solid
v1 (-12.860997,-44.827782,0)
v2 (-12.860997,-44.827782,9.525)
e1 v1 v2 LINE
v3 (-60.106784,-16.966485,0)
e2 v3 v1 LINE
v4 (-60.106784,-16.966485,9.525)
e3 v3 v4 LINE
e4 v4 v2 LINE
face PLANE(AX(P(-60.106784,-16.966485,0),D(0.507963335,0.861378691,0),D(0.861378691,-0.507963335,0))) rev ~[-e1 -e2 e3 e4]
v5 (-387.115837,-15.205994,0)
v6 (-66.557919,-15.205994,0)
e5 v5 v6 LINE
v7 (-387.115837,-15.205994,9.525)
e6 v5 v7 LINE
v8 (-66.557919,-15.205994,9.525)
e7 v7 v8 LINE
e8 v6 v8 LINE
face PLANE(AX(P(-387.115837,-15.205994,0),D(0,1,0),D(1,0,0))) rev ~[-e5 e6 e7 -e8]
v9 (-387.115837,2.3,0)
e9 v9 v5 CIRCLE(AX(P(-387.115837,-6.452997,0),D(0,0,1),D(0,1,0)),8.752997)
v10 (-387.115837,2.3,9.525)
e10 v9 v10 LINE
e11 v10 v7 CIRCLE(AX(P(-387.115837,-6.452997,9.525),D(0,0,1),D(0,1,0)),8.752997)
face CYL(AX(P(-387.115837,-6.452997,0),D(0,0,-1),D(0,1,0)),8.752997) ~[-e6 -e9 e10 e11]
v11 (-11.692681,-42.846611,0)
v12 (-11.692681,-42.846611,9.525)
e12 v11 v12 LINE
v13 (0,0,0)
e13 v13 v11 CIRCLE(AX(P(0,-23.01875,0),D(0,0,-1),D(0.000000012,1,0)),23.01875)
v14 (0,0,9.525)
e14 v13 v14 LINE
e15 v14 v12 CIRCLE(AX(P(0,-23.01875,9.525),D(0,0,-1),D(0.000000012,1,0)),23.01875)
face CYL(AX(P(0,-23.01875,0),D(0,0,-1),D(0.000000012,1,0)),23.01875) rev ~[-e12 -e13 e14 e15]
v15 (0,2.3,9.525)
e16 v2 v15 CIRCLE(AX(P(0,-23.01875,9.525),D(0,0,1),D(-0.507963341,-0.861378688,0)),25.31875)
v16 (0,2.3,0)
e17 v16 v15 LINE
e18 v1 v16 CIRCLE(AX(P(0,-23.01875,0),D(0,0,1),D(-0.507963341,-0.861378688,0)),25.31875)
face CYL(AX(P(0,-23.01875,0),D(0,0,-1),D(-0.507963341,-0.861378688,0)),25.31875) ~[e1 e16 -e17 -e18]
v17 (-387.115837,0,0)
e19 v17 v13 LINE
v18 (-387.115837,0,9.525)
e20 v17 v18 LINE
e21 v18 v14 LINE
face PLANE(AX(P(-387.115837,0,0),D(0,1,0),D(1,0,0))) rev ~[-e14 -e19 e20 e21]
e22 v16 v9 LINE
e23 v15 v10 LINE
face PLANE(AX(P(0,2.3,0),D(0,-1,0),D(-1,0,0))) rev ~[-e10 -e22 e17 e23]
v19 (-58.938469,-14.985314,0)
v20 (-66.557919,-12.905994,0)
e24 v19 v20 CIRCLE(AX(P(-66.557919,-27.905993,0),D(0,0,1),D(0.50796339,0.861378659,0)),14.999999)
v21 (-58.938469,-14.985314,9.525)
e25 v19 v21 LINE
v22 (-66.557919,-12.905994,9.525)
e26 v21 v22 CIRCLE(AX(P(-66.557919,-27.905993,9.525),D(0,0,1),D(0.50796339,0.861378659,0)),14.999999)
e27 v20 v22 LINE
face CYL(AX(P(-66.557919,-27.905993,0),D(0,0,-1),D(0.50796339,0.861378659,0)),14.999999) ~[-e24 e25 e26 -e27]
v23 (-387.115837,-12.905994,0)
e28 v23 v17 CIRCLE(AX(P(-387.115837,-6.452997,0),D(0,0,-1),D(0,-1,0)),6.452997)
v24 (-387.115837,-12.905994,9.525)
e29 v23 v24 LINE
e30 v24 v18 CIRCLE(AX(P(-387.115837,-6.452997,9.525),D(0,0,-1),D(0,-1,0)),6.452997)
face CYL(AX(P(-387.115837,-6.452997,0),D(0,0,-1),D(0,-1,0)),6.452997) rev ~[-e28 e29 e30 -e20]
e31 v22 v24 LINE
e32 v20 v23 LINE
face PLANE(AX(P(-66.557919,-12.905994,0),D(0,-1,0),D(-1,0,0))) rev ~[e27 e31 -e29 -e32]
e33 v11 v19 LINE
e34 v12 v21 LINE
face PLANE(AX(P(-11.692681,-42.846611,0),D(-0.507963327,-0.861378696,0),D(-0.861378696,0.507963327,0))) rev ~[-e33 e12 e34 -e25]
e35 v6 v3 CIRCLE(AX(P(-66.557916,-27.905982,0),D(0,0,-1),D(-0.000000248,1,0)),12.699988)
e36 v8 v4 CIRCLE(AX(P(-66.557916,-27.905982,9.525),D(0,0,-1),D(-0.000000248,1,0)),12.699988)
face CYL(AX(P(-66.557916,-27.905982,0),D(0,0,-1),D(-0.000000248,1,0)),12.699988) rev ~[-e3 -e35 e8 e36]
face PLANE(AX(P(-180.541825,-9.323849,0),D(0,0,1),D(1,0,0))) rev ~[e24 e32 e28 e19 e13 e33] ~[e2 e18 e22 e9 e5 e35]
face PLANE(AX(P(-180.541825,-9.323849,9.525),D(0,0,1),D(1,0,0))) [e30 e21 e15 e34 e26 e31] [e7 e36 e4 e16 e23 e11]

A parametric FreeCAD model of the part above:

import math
import FreeCAD as App
import Part
import Sketcher
Q = App.Units.Quantity

doc = App.newDocument("Part")
body = doc.addObject("PartDesign::Body", "Body")

sketch1 = doc.addObject("Sketcher::SketchObject", "Sketch")
body.addObject(sketch1)
sketch1.AttachmentSupport = (doc.XY_Plane, [""])
sketch1.MapMode = "FlatFace"
sketch1.addGeometry([
    Part.LineSegment(App.Vector(0, 2.3, 0), App.Vector(-387.115837, 2.3, 0)),
    Part.ArcOfCircle(Part.Circle(App.Vector(-387.115837, -6.452997, 0), App.Vector(0, 0, 1), 8.752997), math.radians(90), math.radians(270)),
    Part.LineSegment(App.Vector(-387.115837, -15.205994, 0), App.Vector(-66.557919, -15.205994, 0)),
    Part.ArcOfCircle(Part.Circle(App.Vector(-66.557916, -27.905982, 0), App.Vector(0, 0, 1), 12.699988), math.radians(59.471719), math.radians(90.000014)),
    Part.LineSegment(App.Vector(-60.106784, -16.966485, 0), App.Vector(-12.860997, -44.827782, 0)),
    Part.ArcOfCircle(Part.Circle(App.Vector(0, -23.01875, 0), App.Vector(0, 0, 1), 25.31875), math.radians(-120.528264), math.radians(90)),
    Part.LineSegment(App.Vector(-387.115837, 0, 0), App.Vector(0, 0, 0)),
    Part.ArcOfCircle(Part.Circle(App.Vector(0, -23.01875, 0), App.Vector(0, 0, 1), 23.01875), math.radians(-120.528263), math.radians(89.999999)),
    Part.LineSegment(App.Vector(-11.692681, -42.846611, 0), App.Vector(-58.938469, -14.985314, 0)),
    Part.ArcOfCircle(Part.Circle(App.Vector(-66.557919, -27.905993, 0), App.Vector(0, 0, 1), 14.999999), math.radians(59.471733), math.radians(89.999998)),
    Part.LineSegment(App.Vector(-66.557919, -12.905994, 0), App.Vector(-387.115837, -12.905994, 0)),
    Part.ArcOfCircle(Part.Circle(App.Vector(-387.115837, -6.452997, 0), App.Vector(0, 0, 1), 6.452997), math.radians(90), math.radians(270)),
], False)
sketch1.addConstraint([
    Sketcher.Constraint("Coincident", 0, 2, 1, 1),
    Sketcher.Constraint("Coincident", 1, 2, 2, 1),
    Sketcher.Constraint("Coincident", 2, 2, 3, 2),
    Sketcher.Constraint("Coincident", 3, 1, 4, 1),
    Sketcher.Constraint("Coincident", 4, 2, 5, 1),
    Sketcher.Constraint("Coincident", 5, 2, 0, 1),
    Sketcher.Constraint("Coincident", 6, 2, 7, 2),
    Sketcher.Constraint("Coincident", 7, 1, 8, 1),
    Sketcher.Constraint("Coincident", 8, 2, 9, 1),
    Sketcher.Constraint("Coincident", 9, 2, 10, 1),
    Sketcher.Constraint("Coincident", 10, 2, 11, 2),
    Sketcher.Constraint("Coincident", 11, 1, 6, 1),
    Sketcher.Constraint("Horizontal", 0),
    Sketcher.Constraint("Horizontal", 2),
    Sketcher.Constraint("Horizontal", 6),
    Sketcher.Constraint("Horizontal", 10),
    Sketcher.Constraint("Coincident", 6, 2, -1, 1),
    Sketcher.Constraint("Coincident", 7, 3, 5, 3),
    Sketcher.Constraint("Coincident", 11, 3, 1, 3),
    Sketcher.Constraint("PointOnObject", 5, 3, -2),
    Sketcher.Constraint("PointOnObject", 5, 2, -2),
    Sketcher.Constraint("Radius", 7, Q("0.90625 in")),
    Sketcher.Constraint("DistanceY", 9, 3, 1, 2, Q("0.5 in")),
    Sketcher.Constraint("Radius", 9, 14.999999),
    Sketcher.Constraint("Radius", 3, 12.699988),
    Sketcher.Constraint("Radius", 1, 8.752997),
    Sketcher.Constraint("DistanceY", 4, 2, 3, 3, 16.9218),
    Sketcher.Constraint("Distance", 4, 54.849032),
    Sketcher.Constraint("DistanceX", 0, 2, 0, 1, 387.115837),
    Sketcher.Constraint("DistanceX", 2, 1, 2, 2, 320.557918),
    Sketcher.Constraint("DistanceX", 6, 1, 6, 2, 387.115837),
    Sketcher.Constraint("DistanceX", 10, 2, 10, 1, 320.557918),
    Sketcher.Constraint("DistanceX", 9, 3, -1, 1, 66.557919),
    Sketcher.Constraint("DistanceX", 2, 2, -1, 1, 66.557919),
    Sketcher.Constraint("DistanceX", 7, 1, -1, 1, 11.692681),
    Sketcher.Constraint("DistanceX", 8, 2, -1, 1, 58.938469),
    Sketcher.Constraint("DistanceX", 9, 2, -1, 1, 66.557919),
    Sketcher.Constraint("DistanceX", 1, 3, 3, 3, 320.557921),
    Sketcher.Constraint("DistanceX", 0, 2, 3, 3, 320.557921),
])
pad1 = doc.addObject("PartDesign::Pad", "Pad")
body.addObject(pad1)
pad1.Profile = sketch1
pad1.Length = Q("0.375 in")

doc.recompute()
